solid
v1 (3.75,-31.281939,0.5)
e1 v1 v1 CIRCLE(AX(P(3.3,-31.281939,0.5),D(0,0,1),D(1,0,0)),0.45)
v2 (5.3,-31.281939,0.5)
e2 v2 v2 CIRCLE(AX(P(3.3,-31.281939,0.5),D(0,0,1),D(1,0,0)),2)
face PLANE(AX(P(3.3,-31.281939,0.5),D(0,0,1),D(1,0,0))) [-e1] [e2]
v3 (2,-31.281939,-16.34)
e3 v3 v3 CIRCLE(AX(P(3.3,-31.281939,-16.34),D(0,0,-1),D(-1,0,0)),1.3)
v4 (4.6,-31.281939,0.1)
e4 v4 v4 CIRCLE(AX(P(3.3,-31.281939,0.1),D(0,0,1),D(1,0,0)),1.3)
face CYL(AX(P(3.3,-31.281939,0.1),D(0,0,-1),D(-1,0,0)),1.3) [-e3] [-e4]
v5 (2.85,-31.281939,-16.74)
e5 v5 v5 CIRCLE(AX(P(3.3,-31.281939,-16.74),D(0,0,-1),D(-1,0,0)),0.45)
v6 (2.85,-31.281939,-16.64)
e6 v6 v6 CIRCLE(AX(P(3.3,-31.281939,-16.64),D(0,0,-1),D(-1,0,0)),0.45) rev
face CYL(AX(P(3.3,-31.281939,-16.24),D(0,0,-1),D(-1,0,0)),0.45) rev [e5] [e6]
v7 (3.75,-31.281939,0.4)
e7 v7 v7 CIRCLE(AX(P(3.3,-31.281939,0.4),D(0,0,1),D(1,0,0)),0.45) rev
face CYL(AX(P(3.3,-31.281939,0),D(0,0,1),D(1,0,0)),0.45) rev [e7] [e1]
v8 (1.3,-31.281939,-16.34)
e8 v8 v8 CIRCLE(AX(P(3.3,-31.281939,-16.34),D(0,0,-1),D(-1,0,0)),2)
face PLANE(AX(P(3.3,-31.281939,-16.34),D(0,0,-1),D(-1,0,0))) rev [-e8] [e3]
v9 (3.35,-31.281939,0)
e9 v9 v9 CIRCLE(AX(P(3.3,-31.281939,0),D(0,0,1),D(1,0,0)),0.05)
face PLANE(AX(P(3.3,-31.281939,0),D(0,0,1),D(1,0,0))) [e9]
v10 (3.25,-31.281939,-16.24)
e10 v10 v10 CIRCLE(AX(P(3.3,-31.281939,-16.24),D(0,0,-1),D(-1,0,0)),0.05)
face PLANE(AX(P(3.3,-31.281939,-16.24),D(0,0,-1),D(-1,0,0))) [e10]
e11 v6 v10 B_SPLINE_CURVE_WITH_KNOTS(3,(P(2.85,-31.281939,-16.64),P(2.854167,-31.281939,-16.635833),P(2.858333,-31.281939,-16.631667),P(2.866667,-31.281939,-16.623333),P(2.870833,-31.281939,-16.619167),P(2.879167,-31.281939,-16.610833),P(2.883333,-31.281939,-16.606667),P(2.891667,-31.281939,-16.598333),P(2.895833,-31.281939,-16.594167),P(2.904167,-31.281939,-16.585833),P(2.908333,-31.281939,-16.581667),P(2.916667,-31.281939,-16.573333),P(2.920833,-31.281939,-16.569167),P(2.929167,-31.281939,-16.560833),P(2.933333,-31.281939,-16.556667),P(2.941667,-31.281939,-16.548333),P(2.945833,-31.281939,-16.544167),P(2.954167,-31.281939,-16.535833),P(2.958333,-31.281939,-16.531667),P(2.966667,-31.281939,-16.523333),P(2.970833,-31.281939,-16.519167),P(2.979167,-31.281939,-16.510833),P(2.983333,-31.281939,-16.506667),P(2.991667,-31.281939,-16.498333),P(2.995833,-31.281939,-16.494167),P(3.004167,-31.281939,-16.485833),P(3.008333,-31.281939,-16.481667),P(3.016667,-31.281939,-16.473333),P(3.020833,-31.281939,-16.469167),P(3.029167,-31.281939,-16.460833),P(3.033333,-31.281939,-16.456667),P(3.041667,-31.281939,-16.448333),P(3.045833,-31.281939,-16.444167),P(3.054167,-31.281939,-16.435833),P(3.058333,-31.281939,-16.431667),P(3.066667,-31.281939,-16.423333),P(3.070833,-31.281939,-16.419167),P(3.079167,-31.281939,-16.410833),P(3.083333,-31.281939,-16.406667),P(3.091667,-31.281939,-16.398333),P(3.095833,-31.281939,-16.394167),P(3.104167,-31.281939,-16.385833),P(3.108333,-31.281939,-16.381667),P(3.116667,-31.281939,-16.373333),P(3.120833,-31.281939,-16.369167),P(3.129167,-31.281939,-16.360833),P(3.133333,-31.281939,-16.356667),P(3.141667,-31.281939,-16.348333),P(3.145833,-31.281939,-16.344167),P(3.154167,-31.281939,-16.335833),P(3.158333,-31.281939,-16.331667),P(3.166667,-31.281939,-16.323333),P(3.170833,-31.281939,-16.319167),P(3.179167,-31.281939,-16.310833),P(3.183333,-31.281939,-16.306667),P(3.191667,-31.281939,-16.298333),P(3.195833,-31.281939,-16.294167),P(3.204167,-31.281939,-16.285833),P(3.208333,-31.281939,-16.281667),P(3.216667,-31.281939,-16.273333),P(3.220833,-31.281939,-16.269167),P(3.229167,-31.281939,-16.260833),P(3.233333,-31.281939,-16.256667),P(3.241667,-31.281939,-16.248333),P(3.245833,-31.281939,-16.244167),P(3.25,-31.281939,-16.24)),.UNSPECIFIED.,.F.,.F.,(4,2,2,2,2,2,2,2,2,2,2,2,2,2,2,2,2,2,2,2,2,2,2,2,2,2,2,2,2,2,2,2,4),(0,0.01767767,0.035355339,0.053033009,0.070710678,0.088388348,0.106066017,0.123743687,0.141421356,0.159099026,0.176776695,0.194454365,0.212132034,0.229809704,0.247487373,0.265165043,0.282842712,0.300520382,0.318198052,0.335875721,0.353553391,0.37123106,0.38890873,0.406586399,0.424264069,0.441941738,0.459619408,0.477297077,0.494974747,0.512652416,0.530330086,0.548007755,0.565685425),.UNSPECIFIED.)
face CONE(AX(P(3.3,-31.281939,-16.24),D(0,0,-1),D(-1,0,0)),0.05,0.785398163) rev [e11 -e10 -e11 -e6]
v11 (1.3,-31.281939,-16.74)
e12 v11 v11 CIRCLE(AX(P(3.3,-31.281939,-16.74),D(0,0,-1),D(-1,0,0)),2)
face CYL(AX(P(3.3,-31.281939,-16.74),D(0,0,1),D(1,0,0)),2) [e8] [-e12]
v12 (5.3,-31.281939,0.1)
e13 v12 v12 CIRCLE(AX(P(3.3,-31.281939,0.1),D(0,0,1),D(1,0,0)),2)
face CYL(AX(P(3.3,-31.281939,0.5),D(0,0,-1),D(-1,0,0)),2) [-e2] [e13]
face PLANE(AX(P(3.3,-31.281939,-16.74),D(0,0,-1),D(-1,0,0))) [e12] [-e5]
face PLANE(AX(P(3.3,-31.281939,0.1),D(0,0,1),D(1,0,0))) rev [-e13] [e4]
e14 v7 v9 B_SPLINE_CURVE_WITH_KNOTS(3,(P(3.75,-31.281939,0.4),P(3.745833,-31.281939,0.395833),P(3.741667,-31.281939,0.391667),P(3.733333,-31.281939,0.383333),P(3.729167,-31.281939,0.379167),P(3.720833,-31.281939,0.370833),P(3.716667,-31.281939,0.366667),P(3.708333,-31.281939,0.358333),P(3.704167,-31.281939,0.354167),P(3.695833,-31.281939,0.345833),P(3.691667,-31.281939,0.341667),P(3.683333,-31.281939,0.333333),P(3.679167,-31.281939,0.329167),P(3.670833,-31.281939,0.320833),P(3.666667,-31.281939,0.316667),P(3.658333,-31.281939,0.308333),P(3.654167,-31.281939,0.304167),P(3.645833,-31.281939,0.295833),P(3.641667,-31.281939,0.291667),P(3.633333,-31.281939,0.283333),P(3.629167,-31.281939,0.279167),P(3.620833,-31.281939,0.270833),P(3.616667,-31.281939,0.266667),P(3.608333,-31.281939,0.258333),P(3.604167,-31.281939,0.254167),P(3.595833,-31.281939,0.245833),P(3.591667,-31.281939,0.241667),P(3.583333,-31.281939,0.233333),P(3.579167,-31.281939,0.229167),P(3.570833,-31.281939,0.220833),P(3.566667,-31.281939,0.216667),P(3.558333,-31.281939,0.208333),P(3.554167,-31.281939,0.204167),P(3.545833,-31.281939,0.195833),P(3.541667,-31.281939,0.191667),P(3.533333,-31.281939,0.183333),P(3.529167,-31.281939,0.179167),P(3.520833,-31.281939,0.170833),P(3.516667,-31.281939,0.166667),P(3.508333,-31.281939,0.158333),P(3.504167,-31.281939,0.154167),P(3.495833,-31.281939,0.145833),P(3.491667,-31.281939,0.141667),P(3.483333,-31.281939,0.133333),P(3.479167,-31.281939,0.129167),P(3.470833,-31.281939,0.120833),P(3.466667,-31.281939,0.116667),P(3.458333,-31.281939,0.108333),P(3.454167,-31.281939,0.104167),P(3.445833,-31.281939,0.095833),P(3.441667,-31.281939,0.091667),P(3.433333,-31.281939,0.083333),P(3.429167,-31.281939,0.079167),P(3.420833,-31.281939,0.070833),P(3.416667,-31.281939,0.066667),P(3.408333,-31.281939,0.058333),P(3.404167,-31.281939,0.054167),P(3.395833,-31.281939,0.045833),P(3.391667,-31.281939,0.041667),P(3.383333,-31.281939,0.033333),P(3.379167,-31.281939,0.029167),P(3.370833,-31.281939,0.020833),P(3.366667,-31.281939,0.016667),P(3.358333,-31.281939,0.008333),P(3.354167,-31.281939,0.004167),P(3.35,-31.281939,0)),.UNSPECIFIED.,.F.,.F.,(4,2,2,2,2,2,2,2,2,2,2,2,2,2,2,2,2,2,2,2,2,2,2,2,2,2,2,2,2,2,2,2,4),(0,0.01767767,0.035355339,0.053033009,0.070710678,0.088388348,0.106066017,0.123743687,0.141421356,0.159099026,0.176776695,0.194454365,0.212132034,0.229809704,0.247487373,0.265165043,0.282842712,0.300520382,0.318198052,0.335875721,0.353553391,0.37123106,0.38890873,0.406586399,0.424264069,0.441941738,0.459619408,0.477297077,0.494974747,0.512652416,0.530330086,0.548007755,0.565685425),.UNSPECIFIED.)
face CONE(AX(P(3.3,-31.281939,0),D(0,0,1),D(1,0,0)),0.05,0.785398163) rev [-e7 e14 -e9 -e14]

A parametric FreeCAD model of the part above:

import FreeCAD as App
import Part
import Sketcher


def edges_at(feature, points):
    """Names of the edges that pass closest to the given points."""
    edges = feature.Shape.Edges
    near = lambda p: min(range(len(edges)), key=lambda i: edges[i].distToShape(Part.Vertex(*p))[0])
    return sorted({f"Edge{near(p) + 1}" for p in points})

doc = App.newDocument("Part")
params = doc.addObject("Spreadsheet::Sheet", "Params")
for row, (alias, value) in enumerate([
    ("sketch1_diameter", "2.6 mm"),
    ("pad1_length", "0.1 mm"),
    ("pad1_length2", "16.34 mm"),
    ("sketch2_diameter", "4 mm"),
    ("pad2_length", "0.4 mm"),
    ("sketch3_diameter", "4 mm"),
    ("pad3_length", "0.4 mm"),
    ("sketch4_diameter", "0.9 mm"),
    ("pocket1_length", "0.5 mm"),
    ("chamfer_size", "0.4 mm"),
    ("sketch5_diameter", "0.9 mm"),
    ("pocket2_length", "0.5 mm"),
    ("chamfer2_size", "0.4 mm"),
], start=1):
    params.set(f"A{row}", alias)
    params.set(f"B{row}", "=" + value)
    params.setAlias(f"B{row}", alias)

body = doc.addObject("PartDesign::Body", "Body")

# Sketch on XY plane
sketch1 = body.newObject("Sketcher::SketchObject", "Sketch")
sketch1.AttachmentSupport = (doc.getObject("XY_Plane"), [""])
sketch1.MapMode = "FlatFace"
sketch1.addGeometry(Part.Circle(App.Vector(3.3, -31.3, 0), App.Vector(0, 0, 1), 1.3), False)
sketch1.addConstraint(Sketcher.Constraint("Diameter", 0, 2.6))
sketch1.addConstraint(Sketcher.Constraint("DistanceX", -1, 1, 0, 3, 3.3))
sketch1.addConstraint(Sketcher.Constraint("DistanceY", 0, 3, -1, 1, 31.281939))
sketch1.setExpression("Constraints[0]", "Params.sketch1_diameter")
pad1 = body.newObject("PartDesign::Pad", "Pad")
pad1.Profile = sketch1
pad1.Type = "TwoLengths"
pad1.setExpression("Length", "Params.pad1_length")
pad1.setExpression("Length2", "Params.pad1_length2")

# Sketch on XY plane
sketch2 = body.newObject("Sketcher::SketchObject", "Sketch001")
sketch2.AttachmentSupport = (doc.getObject("XY_Plane"), [""])
sketch2.MapMode = "FlatFace"
sketch2.AttachmentOffset = App.Placement(App.Vector(0, 0, 0.1), App.Rotation())
sketch2.addGeometry(Part.Circle(App.Vector(3.3, -31.3, 0), App.Vector(0, 0, 1), 2), False)
sketch2.addConstraint(Sketcher.Constraint("Diameter", 0, 4.0))
sketch2.addConstraint(Sketcher.Constraint("DistanceX", -1, 1, 0, 3, 3.3))
sketch2.addConstraint(Sketcher.Constraint("DistanceY", 0, 3, -1, 1, 31.281939))
sketch2.setExpression("Constraints[0]", "Params.sketch2_diameter")
pad2 = body.newObject("PartDesign::Pad", "Pad001")
pad2.Profile = sketch2
pad2.setExpression("Length", "Params.pad2_length")

# Sketch on XY plane
sketch3 = body.newObject("Sketcher::SketchObject", "Sketch002")
sketch3.AttachmentSupport = (doc.getObject("XY_Plane"), [""])
sketch3.MapMode = "FlatFace"
sketch3.AttachmentOffset = App.Placement(App.Vector(0, 0, -16.74), App.Rotation())
sketch3.addGeometry(Part.Circle(App.Vector(3.3, -31.3, 0), App.Vector(0, 0, 1), 2), False)
sketch3.addConstraint(Sketcher.Constraint("Diameter", 0, 4.0))
sketch3.addConstraint(Sketcher.Constraint("DistanceX", -1, 1, 0, 3, 3.3))
sketch3.addConstraint(Sketcher.Constraint("DistanceY", 0, 3, -1, 1, 31.281939))
sketch3.setExpression("Constraints[0]", "Params.sketch3_diameter")
pad3 = body.newObject("PartDesign::Pad", "Pad002")
pad3.Profile = sketch3
pad3.setExpression("Length", "Params.pad3_length")

# Sketch on XY plane
sketch4 = body.newObject("Sketcher::SketchObject", "Sketch003")
sketch4.AttachmentSupport = (doc.getObject("XY_Plane"), [""])
sketch4.MapMode = "FlatFace"
sketch4.AttachmentOffset = App.Placement(App.Vector(0, 0, -16.74), App.Rotation())
sketch4.addGeometry(Part.Circle(App.Vector(3.3, -31.28, 0), App.Vector(0, 0, 1), 0.45), False)
sketch4.addConstraint(Sketcher.Constraint("Diameter", 0, 0.9))
sketch4.addConstraint(Sketcher.Constraint("DistanceX", -1, 1, 0, 3, 3.3))
sketch4.addConstraint(Sketcher.Constraint("DistanceY", 0, 3, -1, 1, 31.281939))
sketch4.setExpression("Constraints[0]", "Params.sketch4_diameter")
pocket1 = body.newObject("PartDesign::Pocket", "Pocket")
pocket1.Profile = sketch4
pocket1.setExpression("Length", "Params.pocket1_length")
pocket1.Reversed = True
doc.recompute()

chamfer = body.newObject("PartDesign::Chamfer", "Chamfer")
chamfer.Base = (pocket1, edges_at(pocket1, [(3.75, -31.282, -16.24)]))
chamfer.setExpression("Size", "Params.chamfer_size")

# Sketch on XY plane
sketch5 = body.newObject("Sketcher::SketchObject", "Sketch004")
sketch5.AttachmentSupport = (doc.getObject("XY_Plane"), [""])
sketch5.MapMode = "FlatFace"
sketch5.addGeometry(Part.Circle(App.Vector(3.3, -31.28, 0), App.Vector(0, 0, 1), 0.45), False)
sketch5.addConstraint(Sketcher.Constraint("Diameter", 0, 0.9))
sketch5.addConstraint(Sketcher.Constraint("DistanceX", -1, 1, 0, 3, 3.3))
sketch5.addConstraint(Sketcher.Constraint("DistanceY", 0, 3, -1, 1, 31.281939))
sketch5.setExpression("Constraints[0]", "Params.sketch5_diameter")
pocket2 = body.newObject("PartDesign::Pocket", "Pocket001")
pocket2.Profile = sketch5
pocket2.setExpression("Length", "Params.pocket2_length")
pocket2.Reversed = True
doc.recompute()

chamfer2 = body.newObject("PartDesign::Chamfer", "Chamfer001")
chamfer2.Base = (pocket2, edges_at(pocket2, [(3.75, -31.282, 0)]))
chamfer2.setExpression("Size", "Params.chamfer2_size")

doc.recompute()
